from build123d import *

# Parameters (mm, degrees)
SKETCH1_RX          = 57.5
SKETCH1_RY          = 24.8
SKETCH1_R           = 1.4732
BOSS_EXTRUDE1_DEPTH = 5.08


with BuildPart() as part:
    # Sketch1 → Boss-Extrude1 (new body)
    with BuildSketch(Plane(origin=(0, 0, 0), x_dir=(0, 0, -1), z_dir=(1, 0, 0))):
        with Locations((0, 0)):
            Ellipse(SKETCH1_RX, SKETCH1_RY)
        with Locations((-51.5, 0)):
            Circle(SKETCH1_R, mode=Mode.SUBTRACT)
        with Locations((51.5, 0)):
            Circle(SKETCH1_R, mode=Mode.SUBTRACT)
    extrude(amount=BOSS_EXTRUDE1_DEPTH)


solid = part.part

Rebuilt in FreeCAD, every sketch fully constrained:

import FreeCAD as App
import Part
import Sketcher
Q = App.Units.Quantity

doc = App.newDocument("Part")
body = doc.addObject("PartDesign::Body", "Body")

sketch1 = body.newObject("Sketcher::SketchObject", "Sketch")
sketch1.AttachmentSupport = (doc.getObject("YZ_Plane"), [""])
sketch1.MapMode = "FlatFace"
sketch1.addGeometry([
    Part.Ellipse(App.Vector(0, -57.5, 0), App.Vector(24.8, 0, 0), App.Vector(0, 0, 0)),
    Part.Circle(App.Vector(0, 51.5, 0), App.Vector(0, 0, 1), 1.4732),
    Part.Circle(App.Vector(0, -51.5, 0), App.Vector(0, 0, 1), 1.4732),
], False)
sketch1.addConstraint([
    Sketcher.Constraint("Block", 0),
    Sketcher.Constraint("Equal", 1, 2),
    Sketcher.Constraint("Symmetric", 1, 3, 2, 3, -1, 1),
    Sketcher.Constraint("PointOnObject", 1, 3, -2),
    Sketcher.Constraint("Diameter", 1, Q("0.116 in")),
    Sketcher.Constraint("DistanceY", -1, 1, 1, 3, Q("51.5 mm")),
])
pad1 = body.newObject("PartDesign::Pad", "Pad")
pad1.Profile = sketch1
pad1.Length = Q("0.2 in")

doc.recompute()
